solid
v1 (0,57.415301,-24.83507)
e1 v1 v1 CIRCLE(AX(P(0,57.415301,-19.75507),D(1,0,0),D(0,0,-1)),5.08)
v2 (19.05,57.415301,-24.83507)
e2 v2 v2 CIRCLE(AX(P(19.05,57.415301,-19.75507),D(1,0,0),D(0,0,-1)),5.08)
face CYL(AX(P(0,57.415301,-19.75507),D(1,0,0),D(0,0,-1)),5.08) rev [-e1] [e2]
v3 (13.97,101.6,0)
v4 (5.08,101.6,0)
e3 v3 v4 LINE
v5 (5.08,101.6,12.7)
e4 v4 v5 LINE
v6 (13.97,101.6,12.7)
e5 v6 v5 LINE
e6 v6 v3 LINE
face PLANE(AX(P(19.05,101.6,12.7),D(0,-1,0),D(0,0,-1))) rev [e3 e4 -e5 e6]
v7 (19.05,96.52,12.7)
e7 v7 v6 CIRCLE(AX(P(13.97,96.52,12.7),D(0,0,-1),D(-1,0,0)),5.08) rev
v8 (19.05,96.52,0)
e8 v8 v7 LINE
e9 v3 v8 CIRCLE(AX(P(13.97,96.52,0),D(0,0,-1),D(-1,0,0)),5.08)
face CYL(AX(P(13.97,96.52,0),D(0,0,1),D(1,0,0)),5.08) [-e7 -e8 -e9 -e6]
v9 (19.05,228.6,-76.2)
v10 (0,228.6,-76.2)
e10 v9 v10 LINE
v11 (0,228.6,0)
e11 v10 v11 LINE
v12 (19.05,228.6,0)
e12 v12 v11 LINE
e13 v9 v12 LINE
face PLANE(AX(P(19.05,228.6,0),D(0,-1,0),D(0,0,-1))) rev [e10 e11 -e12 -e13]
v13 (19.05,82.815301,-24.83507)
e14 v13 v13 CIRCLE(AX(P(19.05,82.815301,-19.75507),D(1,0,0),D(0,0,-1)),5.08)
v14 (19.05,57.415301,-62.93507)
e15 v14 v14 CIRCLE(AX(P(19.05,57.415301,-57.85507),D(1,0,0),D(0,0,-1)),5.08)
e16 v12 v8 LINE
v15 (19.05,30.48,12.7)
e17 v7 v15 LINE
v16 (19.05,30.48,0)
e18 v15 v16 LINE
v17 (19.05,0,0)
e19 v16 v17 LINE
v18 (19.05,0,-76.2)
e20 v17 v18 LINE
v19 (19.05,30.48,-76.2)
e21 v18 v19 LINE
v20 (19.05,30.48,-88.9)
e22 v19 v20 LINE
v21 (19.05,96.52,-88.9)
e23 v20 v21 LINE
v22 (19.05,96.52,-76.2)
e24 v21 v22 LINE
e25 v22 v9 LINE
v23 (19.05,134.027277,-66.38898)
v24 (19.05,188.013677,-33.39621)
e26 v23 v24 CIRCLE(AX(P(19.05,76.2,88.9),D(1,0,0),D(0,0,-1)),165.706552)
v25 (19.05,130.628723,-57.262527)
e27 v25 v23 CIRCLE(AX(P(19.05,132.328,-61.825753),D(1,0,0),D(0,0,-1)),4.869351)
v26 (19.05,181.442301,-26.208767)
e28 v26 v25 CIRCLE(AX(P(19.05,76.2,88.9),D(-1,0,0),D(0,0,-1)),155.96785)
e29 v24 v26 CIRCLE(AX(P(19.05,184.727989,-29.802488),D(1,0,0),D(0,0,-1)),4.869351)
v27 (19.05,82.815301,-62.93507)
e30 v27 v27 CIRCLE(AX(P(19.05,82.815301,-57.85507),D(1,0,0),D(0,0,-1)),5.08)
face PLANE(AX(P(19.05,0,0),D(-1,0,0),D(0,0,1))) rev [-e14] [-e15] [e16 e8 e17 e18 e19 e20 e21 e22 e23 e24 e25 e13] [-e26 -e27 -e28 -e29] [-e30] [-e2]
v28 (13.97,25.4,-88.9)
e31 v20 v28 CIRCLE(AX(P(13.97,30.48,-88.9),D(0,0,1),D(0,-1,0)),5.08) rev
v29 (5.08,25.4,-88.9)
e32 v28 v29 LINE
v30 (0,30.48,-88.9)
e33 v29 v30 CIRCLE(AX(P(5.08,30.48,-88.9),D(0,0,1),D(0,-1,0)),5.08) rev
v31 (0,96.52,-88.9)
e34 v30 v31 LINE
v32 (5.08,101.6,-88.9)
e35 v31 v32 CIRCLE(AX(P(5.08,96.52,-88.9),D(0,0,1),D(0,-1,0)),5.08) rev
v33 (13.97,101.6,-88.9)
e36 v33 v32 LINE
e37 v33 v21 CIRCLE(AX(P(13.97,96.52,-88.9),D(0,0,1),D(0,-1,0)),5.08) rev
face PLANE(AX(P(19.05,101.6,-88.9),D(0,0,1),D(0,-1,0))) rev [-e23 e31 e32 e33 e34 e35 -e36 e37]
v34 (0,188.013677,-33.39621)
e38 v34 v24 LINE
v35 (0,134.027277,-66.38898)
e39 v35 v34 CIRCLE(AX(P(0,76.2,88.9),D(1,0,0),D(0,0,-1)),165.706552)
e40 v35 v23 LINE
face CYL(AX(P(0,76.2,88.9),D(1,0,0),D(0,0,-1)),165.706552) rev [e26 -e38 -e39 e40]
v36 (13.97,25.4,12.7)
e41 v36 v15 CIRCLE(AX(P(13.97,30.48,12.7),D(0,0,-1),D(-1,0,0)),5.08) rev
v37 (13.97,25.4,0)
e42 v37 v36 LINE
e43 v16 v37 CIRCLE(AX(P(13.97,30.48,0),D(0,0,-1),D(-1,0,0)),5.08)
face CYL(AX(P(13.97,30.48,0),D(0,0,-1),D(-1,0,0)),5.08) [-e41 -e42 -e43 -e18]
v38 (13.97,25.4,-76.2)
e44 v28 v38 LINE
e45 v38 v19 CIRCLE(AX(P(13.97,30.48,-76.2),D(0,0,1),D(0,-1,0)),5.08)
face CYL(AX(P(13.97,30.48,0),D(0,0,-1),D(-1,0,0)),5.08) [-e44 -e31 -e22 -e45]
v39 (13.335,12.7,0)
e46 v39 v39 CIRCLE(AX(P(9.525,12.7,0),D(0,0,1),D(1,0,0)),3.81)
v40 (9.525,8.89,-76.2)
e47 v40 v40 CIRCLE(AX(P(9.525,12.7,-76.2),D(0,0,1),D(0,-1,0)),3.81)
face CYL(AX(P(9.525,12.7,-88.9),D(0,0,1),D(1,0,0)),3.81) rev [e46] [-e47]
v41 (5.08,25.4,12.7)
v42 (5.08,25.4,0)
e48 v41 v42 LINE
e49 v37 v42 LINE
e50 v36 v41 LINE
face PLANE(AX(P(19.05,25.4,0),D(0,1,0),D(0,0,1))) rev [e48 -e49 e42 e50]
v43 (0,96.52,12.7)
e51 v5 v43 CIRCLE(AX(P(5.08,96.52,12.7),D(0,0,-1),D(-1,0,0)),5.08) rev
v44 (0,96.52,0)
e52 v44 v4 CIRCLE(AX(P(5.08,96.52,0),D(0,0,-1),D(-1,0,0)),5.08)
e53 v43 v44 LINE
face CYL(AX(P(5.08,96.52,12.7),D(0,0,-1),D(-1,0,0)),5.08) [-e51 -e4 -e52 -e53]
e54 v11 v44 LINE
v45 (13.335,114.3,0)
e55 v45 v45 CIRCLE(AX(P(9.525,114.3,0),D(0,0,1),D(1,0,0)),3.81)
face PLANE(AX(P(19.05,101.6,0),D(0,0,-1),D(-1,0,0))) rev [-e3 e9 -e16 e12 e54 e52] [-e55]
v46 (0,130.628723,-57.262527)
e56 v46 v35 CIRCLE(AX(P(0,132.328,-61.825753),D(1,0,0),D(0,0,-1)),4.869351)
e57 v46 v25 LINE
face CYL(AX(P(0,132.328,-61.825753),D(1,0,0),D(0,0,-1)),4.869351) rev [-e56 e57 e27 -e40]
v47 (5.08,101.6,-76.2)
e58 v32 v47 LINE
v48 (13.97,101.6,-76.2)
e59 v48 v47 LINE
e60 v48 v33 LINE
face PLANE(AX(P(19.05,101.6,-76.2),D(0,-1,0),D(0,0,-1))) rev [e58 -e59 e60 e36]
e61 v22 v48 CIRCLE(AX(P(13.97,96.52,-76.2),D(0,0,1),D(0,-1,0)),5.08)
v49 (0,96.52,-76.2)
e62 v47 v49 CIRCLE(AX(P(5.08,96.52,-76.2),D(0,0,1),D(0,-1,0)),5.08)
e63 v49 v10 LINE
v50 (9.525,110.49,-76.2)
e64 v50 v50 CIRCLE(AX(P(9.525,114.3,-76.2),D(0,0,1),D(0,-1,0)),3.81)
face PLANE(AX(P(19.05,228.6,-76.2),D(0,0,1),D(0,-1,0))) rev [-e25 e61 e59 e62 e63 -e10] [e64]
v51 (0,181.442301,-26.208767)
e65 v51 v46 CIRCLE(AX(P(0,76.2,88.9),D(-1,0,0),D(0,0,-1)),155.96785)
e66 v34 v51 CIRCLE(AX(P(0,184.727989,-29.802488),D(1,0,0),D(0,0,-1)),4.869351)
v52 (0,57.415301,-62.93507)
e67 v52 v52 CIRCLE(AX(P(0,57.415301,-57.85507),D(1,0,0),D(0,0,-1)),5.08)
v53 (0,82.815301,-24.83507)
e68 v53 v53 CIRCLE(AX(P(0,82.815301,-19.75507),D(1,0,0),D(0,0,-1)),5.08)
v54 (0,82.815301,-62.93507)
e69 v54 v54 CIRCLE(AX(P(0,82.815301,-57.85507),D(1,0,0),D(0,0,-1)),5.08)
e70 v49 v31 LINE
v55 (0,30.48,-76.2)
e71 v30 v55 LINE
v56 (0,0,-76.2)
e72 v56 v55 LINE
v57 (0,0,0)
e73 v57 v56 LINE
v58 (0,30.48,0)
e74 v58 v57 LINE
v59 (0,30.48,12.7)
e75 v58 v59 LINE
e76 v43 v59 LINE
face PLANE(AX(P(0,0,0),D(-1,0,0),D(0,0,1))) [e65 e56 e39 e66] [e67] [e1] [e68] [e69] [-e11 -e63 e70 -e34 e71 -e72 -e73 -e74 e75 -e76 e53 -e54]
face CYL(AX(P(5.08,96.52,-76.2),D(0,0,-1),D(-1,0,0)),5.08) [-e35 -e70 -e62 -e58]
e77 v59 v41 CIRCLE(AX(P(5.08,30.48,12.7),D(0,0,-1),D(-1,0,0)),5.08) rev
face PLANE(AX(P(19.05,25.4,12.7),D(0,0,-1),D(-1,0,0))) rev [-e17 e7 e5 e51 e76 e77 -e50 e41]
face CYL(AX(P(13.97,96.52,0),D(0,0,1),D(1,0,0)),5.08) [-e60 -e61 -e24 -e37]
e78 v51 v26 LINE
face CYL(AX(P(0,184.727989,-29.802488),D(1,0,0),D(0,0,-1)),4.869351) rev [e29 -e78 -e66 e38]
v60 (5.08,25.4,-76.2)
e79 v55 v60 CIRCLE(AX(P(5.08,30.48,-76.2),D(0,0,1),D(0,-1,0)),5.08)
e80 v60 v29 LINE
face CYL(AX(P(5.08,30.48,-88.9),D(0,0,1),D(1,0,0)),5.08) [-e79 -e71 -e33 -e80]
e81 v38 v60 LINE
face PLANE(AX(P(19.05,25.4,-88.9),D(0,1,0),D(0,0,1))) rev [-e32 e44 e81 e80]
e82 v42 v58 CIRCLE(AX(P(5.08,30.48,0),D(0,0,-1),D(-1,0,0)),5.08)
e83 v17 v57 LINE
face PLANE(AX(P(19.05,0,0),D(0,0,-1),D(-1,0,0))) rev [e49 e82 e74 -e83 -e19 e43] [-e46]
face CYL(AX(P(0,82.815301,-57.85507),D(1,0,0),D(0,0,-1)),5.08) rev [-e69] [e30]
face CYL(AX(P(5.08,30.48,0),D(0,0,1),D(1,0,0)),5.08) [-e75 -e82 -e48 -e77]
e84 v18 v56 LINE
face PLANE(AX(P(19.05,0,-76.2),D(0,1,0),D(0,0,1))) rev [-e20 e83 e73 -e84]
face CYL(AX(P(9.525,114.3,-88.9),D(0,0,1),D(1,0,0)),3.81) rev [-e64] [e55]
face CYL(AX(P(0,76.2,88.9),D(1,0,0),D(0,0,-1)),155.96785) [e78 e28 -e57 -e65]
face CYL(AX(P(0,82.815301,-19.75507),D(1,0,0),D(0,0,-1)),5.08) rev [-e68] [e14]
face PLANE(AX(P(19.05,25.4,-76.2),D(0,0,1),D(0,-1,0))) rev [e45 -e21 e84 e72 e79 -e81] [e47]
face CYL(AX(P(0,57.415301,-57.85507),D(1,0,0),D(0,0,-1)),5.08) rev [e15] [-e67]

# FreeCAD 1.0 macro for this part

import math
import FreeCAD as App
import Part
import Sketcher
Q = App.Units.Quantity


def edges_at(feature, points):
    """Names of the edges that pass closest to the given points."""
    edges = feature.Shape.Edges
    near = lambda p: min(range(len(edges)), key=lambda i: edges[i].distToShape(Part.Vertex(*p))[0])
    return sorted({f"Edge{near(p) + 1}" for p in points})


def add_polygon(sketch, points):
    """Adds a closed chain of lines whose ends are joined by coincident constraints."""
    first, n = sketch.GeometryCount, len(points)
    for a, b in zip(points, points[1:] + points[:1]):
        sketch.addGeometry(Part.LineSegment(App.Vector(*a, 0), App.Vector(*b, 0)), False)
    for i in range(n):
        sketch.addConstraint(Sketcher.Constraint("Coincident", first + i, 2, first + (i + 1) % n, 1))

doc = App.newDocument("Part")
body = doc.addObject("PartDesign::Body", "Body")

# Sketch on YZ plane
sketch1 = doc.addObject("Sketcher::SketchObject", "Sketch")
body.addObject(sketch1)
sketch1.AttachmentSupport = (doc.YZ_Plane, [""])
sketch1.MapMode = "FlatFace"
add_polygon(sketch1, [(25, 0), (0, 0), (0, -76), (25, -76), (25, -89), (102, -89), (102, -76), (229, -76), (229, 0), (102, 0), (102, 13), (25, 13)])  # lines 0-11
sketch1.addConstraint([
    Sketcher.Constraint("Horizontal", 0),
    Sketcher.Constraint("Vertical", 1),
    Sketcher.Constraint("Horizontal", 2),
    Sketcher.Constraint("Vertical", 3),
    Sketcher.Constraint("Horizontal", 4),
    Sketcher.Constraint("Vertical", 5),
    Sketcher.Constraint("Horizontal", 6),
    Sketcher.Constraint("Vertical", 7),
    Sketcher.Constraint("Horizontal", 8),
    Sketcher.Constraint("Vertical", 9),
    Sketcher.Constraint("Horizontal", 10),
    Sketcher.Constraint("Vertical", 11),
    Sketcher.Constraint("Coincident", 0, 2, -1, 1),
    Sketcher.Constraint("PointOnObject", 7, 2, -1),
    Sketcher.Constraint("Horizontal", 2, 2, 5, 2),
    Sketcher.Constraint("Vertical", 5, 2, 8, 2),
    Sketcher.Constraint("Vertical", 3, 2, 10, 2),
    Sketcher.Constraint("Equal", 10, 1),
    Sketcher.Constraint("Equal", 5, 9),
    Sketcher.Constraint("DistanceX", 0, 2, 0, 1, Q("1 in")),
    Sketcher.Constraint("DistanceX", 4, 1, 4, 2, Q("3 in")),
    Sketcher.Constraint("DistanceX", 6, 1, 6, 2, Q("5 in")),
    Sketcher.Constraint("DistanceY", 3, 2, 3, 1, Q("0.5 in")),
])
pad1 = doc.addObject("PartDesign::Pad", "Pad")
body.addObject(pad1)
pad1.Profile = sketch1
pad1.Length = Q("0.75 in")

# Sketch on XY plane
sketch2 = doc.addObject("Sketcher::SketchObject", "Sketch001")
body.addObject(sketch2)
sketch2.AttachmentSupport = (doc.XY_Plane, [""])
sketch2.MapMode = "FlatFace"
sketch2.addGeometry(Part.Circle(App.Vector(9.5, 114.3, 0), App.Vector(0, 0, 1), 3.8), False)
sketch2.addConstraint([
    Sketcher.Constraint("Diameter", 0, Q("0.3 in")),
    Sketcher.Constraint("DistanceY", -1, 1, 0, 3, Q("4.5 in")),
    Sketcher.Constraint("DistanceX", -1, 1, 0, 3, Q("0.375 in")),
])
pocket1 = doc.addObject("PartDesign::Pocket", "Pocket")
body.addObject(pocket1)
pocket1.Profile = sketch2
pocket1.Type = "ThroughAll"

# Sketch on XY plane
sketch3 = doc.addObject("Sketcher::SketchObject", "Sketch002")
body.addObject(sketch3)
sketch3.AttachmentSupport = (doc.XY_Plane, [""])
sketch3.MapMode = "FlatFace"
sketch3.addGeometry(Part.Circle(App.Vector(9.5, 12.7, 0), App.Vector(0, 0, 1), 3.8), False)
sketch3.addConstraint([
    Sketcher.Constraint("Diameter", 0, Q("0.3 in")),
    Sketcher.Constraint("DistanceY", -1, 1, 0, 3, Q("0.5 in")),
    Sketcher.Constraint("DistanceX", -1, 1, 0, 3, Q("0.375 in")),
])
pocket2 = doc.addObject("PartDesign::Pocket", "Pocket001")
body.addObject(pocket2)
pocket2.Profile = sketch3
pocket2.Type = "ThroughAll"

# Sketch on YZ plane
sketch4 = doc.addObject("Sketcher::SketchObject", "Sketch003")
body.addObject(sketch4)
sketch4.AttachmentSupport = (doc.YZ_Plane, [""])
sketch4.MapMode = "FlatFace"
sketch4.AttachmentOffset = App.Placement(App.Vector(0, 0, 0.75 * 25.4), App.Rotation())
sketch4.addGeometry([
    Part.Circle(App.Vector(57.4, -19.8, 0), App.Vector(0, 0, 1), 5.1),  # 0
    Part.Circle(App.Vector(57.4, -57.9, 0), App.Vector(0, 0, 1), 5.1),  # 1
    Part.Circle(App.Vector(82.8, -19.8, 0), App.Vector(0, 0, 1), 5.1),  # 2
    Part.Circle(App.Vector(82.8, -57.9, 0), App.Vector(0, 0, 1), 5.1),  # 3
    Part.ArcOfCircle(Part.Circle(App.Vector(76.2, 88.9, 0), App.Vector(0, 0, 1), 165.7), math.radians(-70), math.radians(-48)),  # 4
    Part.ArcOfCircle(Part.Circle(App.Vector(184.7, -29.8, 0), App.Vector(0, 0, 1), 4.9), math.radians(-48), math.radians(132)),  # 5
    Part.ArcOfCircle(Part.Circle(App.Vector(76.2, 88.9, 0), App.Vector(0, 0, 1), 156), math.radians(-70), math.radians(-48)),  # 6
    Part.ArcOfCircle(Part.Circle(App.Vector(132.3, -61.8, 0), App.Vector(0, 0, 1), 4.9), math.radians(110), math.radians(290)),  # 7
], False)
sketch4.addConstraint([
    Sketcher.Constraint("Tangent", 4, 2, 5, 1),
    Sketcher.Constraint("Tangent", 5, 2, 6, 2),
    Sketcher.Constraint("Tangent", 6, 1, 7, 1),
    Sketcher.Constraint("Tangent", 7, 2, 4, 1),
    Sketcher.Constraint("Coincident", 6, 3, 4, 3),
    Sketcher.Constraint("Equal", 0, 1),
    Sketcher.Constraint("Equal", 1, 2),
    Sketcher.Constraint("Equal", 2, 3),
    Sketcher.Constraint("Horizontal", 0, 3, 2, 3),
    Sketcher.Constraint("Horizontal", 1, 3, 3, 3),
    Sketcher.Constraint("Vertical", 0, 3, 1, 3),
    Sketcher.Constraint("Vertical", 2, 3, 3, 3),
    Sketcher.Constraint("Diameter", 0, Q("0.4 in")),
    Sketcher.Constraint("DistanceX", -1, 1, 4, 3, Q("3 in")),
    Sketcher.Constraint("DistanceX", 0, 3, 2, 3, Q("1 in")),
    Sketcher.Constraint("DistanceY", -1, 1, 4, 3, Q("3.5 in")),
    Sketcher.Constraint("DistanceY", 1, 3, 0, 3, Q("1.5 in")),
    Sketcher.Constraint("Radius", 4, Q("165.706552 mm")),
    Sketcher.Constraint("Radius", 5, Q("4.869351 mm")),
    Sketcher.Constraint("DistanceX", -1, 1, 0, 3, Q("57.415301 mm")),
    Sketcher.Constraint("DistanceX", -1, 1, 7, 3, Q("132.328 mm")),
    Sketcher.Constraint("DistanceX", -1, 1, 5, 2, Q("181.442301 mm")),
    Sketcher.Constraint("DistanceY", 0, 3, -1, 1, Q("19.75507 mm")),
])
pocket3 = doc.addObject("PartDesign::Pocket", "Pocket002")
body.addObject(pocket3)
pocket3.Profile = sketch4
pocket3.Type = "ThroughAll"
doc.recompute()

fillet = doc.addObject("PartDesign::Fillet", "Fillet")
body.addObject(fillet)
fillet.Base = (pocket3, edges_at(pocket3, [
    (19.05, 25.4, -82.55),
    (0, 25.4, 6.35),
    (0, 101.6, 6.35),
    (0, 101.6, -82.55),
    (0, 25.4, -82.55),
    (19.05, 101.6, -82.55),
    (19.05, 101.6, 6.35),
    (19.05, 25.4, 6.35),
]))
fillet.Radius = Q("0.2 in")

doc.recompute()
